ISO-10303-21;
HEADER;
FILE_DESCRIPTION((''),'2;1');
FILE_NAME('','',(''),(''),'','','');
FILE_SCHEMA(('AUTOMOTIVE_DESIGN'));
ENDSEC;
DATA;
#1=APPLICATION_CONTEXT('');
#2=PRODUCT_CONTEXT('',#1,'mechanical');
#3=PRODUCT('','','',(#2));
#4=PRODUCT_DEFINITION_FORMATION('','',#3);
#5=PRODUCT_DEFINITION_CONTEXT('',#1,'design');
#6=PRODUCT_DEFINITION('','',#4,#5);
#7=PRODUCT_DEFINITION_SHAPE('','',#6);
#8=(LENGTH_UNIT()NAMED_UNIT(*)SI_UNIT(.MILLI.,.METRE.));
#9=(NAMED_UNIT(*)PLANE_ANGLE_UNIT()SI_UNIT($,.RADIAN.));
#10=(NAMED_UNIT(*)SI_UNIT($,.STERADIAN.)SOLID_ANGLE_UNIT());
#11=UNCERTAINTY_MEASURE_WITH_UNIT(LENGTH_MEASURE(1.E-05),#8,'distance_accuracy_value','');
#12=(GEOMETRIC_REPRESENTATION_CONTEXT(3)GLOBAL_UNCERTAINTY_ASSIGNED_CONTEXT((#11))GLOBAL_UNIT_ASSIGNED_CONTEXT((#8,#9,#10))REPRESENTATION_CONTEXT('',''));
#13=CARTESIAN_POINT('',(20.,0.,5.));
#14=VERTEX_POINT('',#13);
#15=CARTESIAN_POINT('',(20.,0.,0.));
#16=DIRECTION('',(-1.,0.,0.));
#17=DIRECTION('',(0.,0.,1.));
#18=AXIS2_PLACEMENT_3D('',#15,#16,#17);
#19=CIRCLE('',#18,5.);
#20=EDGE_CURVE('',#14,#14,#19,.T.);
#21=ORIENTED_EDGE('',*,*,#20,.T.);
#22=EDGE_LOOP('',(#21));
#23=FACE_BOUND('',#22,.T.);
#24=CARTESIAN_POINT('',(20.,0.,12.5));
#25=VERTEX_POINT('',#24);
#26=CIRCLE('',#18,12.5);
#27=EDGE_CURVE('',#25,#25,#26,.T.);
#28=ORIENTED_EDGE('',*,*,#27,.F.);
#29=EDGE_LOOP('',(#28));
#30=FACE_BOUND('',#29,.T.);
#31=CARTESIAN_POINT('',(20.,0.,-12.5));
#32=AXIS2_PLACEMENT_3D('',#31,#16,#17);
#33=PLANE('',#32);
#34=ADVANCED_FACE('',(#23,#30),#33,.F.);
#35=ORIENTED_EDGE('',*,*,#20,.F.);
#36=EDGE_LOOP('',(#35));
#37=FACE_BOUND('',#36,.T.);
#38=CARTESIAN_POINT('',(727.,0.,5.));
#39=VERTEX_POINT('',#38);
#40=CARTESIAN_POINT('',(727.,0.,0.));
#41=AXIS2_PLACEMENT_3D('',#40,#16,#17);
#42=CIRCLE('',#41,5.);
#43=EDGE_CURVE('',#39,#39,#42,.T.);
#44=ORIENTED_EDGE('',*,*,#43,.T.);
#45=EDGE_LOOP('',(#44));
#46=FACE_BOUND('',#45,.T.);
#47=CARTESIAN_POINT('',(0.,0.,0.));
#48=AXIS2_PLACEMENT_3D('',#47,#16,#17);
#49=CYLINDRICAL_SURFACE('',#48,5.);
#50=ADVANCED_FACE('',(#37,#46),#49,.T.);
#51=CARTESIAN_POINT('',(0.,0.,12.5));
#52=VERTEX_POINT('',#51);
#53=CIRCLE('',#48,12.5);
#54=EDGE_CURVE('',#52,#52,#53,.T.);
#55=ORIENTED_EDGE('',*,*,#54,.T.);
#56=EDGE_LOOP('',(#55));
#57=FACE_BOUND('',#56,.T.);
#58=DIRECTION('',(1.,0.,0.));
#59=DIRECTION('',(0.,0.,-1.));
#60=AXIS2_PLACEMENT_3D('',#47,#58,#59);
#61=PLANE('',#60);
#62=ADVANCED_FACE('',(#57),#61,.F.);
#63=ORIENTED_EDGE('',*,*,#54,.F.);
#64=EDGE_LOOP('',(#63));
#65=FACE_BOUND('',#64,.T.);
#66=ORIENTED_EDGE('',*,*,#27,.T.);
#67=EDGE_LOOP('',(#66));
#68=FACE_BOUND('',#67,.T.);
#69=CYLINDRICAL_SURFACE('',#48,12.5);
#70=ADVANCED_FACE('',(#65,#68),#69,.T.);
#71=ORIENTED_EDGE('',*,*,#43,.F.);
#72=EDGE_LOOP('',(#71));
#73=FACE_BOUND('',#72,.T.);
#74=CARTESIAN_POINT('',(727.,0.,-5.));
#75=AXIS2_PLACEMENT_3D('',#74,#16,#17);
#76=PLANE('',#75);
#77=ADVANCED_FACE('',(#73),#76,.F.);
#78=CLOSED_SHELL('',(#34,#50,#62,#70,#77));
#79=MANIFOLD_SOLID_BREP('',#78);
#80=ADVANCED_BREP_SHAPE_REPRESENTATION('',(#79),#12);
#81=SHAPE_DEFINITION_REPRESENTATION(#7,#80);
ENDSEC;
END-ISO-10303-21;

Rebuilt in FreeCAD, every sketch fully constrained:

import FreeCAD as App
import Part
import Sketcher

V = App.Vector
Q = App.Units.Quantity

doc = App.newDocument("Part")
body = doc.addObject("PartDesign::Body", "Body")

# Sketch on XZ plane
sketch1 = doc.addObject("Sketcher::SketchObject", "Sketch")
body.addObject(sketch1)
sketch1.AttachmentSupport = (doc.XZ_Plane, [""])
sketch1.MapMode = "FlatFace"
sketch1.addGeometry([
    Part.LineSegment(V(0, -12, 0), V(0, 0, 0)),  # 0
    Part.LineSegment(V(0, 0, 0), V(727, 0, 0)),  # 1
    Part.LineSegment(V(727, 0, 0), V(727, -5, 0)),  # 2
    Part.LineSegment(V(727, -5, 0), V(20, -5, 0)),  # 3
    Part.LineSegment(V(20, -5, 0), V(20, -12, 0)),  # 4
    Part.LineSegment(V(20, -12, 0), V(0, -12, 0)),  # 5
], False)
sketch1.addConstraint([
    Sketcher.Constraint("Coincident", 0, 2, 1, 1),
    Sketcher.Constraint("Coincident", 1, 2, 2, 1),
    Sketcher.Constraint("Coincident", 2, 2, 3, 1),
    Sketcher.Constraint("Coincident", 3, 2, 4, 1),
    Sketcher.Constraint("Coincident", 4, 2, 5, 1),
    Sketcher.Constraint("Coincident", 5, 2, 0, 1),
    Sketcher.Constraint("Vertical", 0),
    Sketcher.Constraint("Horizontal", 1),
    Sketcher.Constraint("Vertical", 2),
    Sketcher.Constraint("Horizontal", 3),
    Sketcher.Constraint("Vertical", 4),
    Sketcher.Constraint("Horizontal", 5),
    Sketcher.Constraint("Coincident", 0, 2, -1, 1),
    Sketcher.Constraint("DistanceX", 1, 1, 1, 2, Q("727 mm")),
    Sketcher.Constraint("DistanceX", 3, 2, 3, 1, Q("707 mm")),
    Sketcher.Constraint("DistanceY", 2, 2, 2, 1, Q("5 mm")),
    Sketcher.Constraint("DistanceY", 0, 1, 0, 2, Q("12.5 mm")),
])
revolution = doc.addObject("PartDesign::Revolution", "Revolution")
body.addObject(revolution)
revolution.Profile = sketch1
revolution.ReferenceAxis = (sketch1, ["H_Axis"])
revolution.Angle = 360

doc.recompute()
